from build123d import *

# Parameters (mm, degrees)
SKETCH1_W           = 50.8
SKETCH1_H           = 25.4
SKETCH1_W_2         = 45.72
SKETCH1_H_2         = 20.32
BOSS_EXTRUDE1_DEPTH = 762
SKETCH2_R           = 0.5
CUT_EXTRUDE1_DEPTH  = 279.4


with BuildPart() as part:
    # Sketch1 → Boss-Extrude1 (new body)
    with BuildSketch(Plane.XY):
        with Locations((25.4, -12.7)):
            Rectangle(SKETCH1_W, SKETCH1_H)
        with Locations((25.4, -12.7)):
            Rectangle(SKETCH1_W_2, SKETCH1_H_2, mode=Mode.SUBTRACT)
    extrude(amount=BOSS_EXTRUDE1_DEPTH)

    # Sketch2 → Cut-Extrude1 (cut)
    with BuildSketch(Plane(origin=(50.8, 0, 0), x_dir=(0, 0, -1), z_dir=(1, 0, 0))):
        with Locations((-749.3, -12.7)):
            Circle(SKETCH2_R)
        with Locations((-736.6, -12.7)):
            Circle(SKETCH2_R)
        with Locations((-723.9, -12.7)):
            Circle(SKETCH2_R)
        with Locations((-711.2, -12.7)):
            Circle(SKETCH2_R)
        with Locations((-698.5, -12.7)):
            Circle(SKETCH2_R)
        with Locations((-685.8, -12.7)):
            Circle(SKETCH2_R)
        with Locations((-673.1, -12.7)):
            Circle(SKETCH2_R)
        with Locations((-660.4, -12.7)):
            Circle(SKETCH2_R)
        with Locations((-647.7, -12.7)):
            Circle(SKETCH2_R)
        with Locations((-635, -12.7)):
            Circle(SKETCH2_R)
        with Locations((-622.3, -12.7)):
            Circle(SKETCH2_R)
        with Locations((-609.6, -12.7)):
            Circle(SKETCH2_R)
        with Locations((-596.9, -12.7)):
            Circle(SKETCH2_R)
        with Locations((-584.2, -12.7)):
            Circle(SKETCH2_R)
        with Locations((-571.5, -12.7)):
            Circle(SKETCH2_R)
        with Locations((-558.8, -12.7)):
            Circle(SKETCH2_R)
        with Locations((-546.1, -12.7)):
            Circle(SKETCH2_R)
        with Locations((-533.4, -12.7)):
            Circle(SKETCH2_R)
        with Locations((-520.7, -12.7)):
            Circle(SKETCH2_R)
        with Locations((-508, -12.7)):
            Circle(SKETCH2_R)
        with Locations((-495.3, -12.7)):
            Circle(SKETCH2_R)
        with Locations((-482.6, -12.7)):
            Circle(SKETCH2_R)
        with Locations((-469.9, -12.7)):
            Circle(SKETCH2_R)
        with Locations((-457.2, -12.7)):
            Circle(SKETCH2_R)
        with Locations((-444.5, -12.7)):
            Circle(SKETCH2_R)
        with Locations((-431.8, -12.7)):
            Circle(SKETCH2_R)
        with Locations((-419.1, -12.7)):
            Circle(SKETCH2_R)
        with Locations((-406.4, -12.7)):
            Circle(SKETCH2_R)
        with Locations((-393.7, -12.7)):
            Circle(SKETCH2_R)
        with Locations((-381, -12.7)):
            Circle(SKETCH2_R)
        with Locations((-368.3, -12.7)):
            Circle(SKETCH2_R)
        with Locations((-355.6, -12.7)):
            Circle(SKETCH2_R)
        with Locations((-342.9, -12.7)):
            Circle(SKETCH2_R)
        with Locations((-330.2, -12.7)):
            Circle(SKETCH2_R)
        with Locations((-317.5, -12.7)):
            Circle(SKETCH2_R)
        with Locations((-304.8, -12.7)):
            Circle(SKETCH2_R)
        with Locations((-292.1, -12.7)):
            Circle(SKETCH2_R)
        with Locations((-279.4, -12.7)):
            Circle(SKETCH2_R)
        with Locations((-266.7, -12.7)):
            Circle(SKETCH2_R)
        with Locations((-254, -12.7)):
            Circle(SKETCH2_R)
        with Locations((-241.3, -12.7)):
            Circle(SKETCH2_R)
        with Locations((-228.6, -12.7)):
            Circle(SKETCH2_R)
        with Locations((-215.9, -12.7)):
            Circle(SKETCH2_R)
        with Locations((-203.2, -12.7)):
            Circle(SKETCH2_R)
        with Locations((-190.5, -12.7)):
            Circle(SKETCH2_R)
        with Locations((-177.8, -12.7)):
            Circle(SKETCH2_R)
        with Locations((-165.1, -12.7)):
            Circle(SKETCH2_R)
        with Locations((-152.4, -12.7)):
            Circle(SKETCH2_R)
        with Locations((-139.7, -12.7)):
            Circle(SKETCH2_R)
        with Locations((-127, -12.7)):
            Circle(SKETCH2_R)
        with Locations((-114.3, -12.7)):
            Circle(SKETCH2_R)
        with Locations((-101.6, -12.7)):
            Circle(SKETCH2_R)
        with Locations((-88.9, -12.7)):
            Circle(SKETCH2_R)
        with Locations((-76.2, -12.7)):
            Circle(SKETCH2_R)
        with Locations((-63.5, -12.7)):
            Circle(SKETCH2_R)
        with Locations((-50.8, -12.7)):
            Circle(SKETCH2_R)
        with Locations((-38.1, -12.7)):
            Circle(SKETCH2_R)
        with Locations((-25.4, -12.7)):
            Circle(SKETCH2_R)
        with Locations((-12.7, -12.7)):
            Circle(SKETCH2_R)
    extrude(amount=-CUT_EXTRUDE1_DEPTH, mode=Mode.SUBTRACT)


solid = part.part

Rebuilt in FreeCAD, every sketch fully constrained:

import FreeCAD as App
import Part
import Sketcher
Q = App.Units.Quantity

doc = App.newDocument("Part")
body = doc.addObject("PartDesign::Body", "Body")

# Sketch on XY plane
sketch1 = doc.addObject("Sketcher::SketchObject", "Sketch")
body.addObject(sketch1)
sketch1.AttachmentSupport = (doc.XY_Plane, [""])
sketch1.MapMode = "FlatFace"
sketch1.addGeometry([
    Part.LineSegment(App.Vector(0, 0, 0), App.Vector(0, -25, 0)),  # 0
    Part.LineSegment(App.Vector(0, -25, 0), App.Vector(51, -25, 0)),  # 1
    Part.LineSegment(App.Vector(51, -25, 0), App.Vector(51, 0, 0)),  # 2
    Part.LineSegment(App.Vector(51, 0, 0), App.Vector(0, 0, 0)),  # 3
    Part.LineSegment(App.Vector(48, -23, 0), App.Vector(3, -23, 0)),  # 4
    Part.LineSegment(App.Vector(3, -23, 0), App.Vector(3, -3, 0)),  # 5
    Part.LineSegment(App.Vector(3, -3, 0), App.Vector(48, -3, 0)),  # 6
    Part.LineSegment(App.Vector(48, -3, 0), App.Vector(48, -23, 0)),  # 7
], False)
sketch1.addConstraint([
    Sketcher.Constraint("Coincident", 0, 2, 1, 1),
    Sketcher.Constraint("Coincident", 1, 2, 2, 1),
    Sketcher.Constraint("Coincident", 2, 2, 3, 1),
    Sketcher.Constraint("Coincident", 3, 2, 0, 1),
    Sketcher.Constraint("Coincident", 4, 2, 5, 1),
    Sketcher.Constraint("Coincident", 5, 2, 6, 1),
    Sketcher.Constraint("Coincident", 6, 2, 7, 1),
    Sketcher.Constraint("Coincident", 7, 2, 4, 1),
    Sketcher.Constraint("Vertical", 0),
    Sketcher.Constraint("Horizontal", 1),
    Sketcher.Constraint("Vertical", 2),
    Sketcher.Constraint("Horizontal", 3),
    Sketcher.Constraint("Horizontal", 4),
    Sketcher.Constraint("Vertical", 5),
    Sketcher.Constraint("Horizontal", 6),
    Sketcher.Constraint("Vertical", 7),
    Sketcher.Constraint("Coincident", 3, 2, -1, 1),
    Sketcher.Constraint("DistanceX", 1, 1, 1, 2, Q("2 in")),
    Sketcher.Constraint("DistanceY", 0, 2, 0, 1, Q("1 in")),
    Sketcher.Constraint("DistanceX", 4, 2, 4, 1, Q("1.8 in")),
    Sketcher.Constraint("DistanceY", 5, 1, 5, 2, Q("0.8 in")),
    Sketcher.Constraint("DistanceX", -1, 1, 4, 2, Q("0.1 in")),
    Sketcher.Constraint("DistanceY", 4, 2, -1, 1, Q("0.9 in")),
])
pad1 = doc.addObject("PartDesign::Pad", "Pad")
body.addObject(pad1)
pad1.Profile = sketch1
pad1.Length = Q("30 in")

# Sketch on YZ plane
sketch2 = doc.addObject("Sketcher::SketchObject", "Sketch001")
body.addObject(sketch2)
sketch2.AttachmentSupport = (doc.YZ_Plane, [""])
sketch2.MapMode = "FlatFace"
sketch2.AttachmentOffset = App.Placement(App.Vector(0, 0, 2 * 25.4), App.Rotation())
sketch2.addGeometry([
    Part.Circle(App.Vector(-12.7, 749.3, 0), App.Vector(0, 0, 1), 0.5),  # 0
    Part.Circle(App.Vector(-12.7, 736.6, 0), App.Vector(0, 0, 1), 0.5),  # 1
    Part.Circle(App.Vector(-12.7, 723.9, 0), App.Vector(0, 0, 1), 0.5),  # 2
    Part.Circle(App.Vector(-12.7, 711.2, 0), App.Vector(0, 0, 1), 0.5),  # 3
    Part.Circle(App.Vector(-12.7, 698.5, 0), App.Vector(0, 0, 1), 0.5),  # 4
    Part.Circle(App.Vector(-12.7, 685.8, 0), App.Vector(0, 0, 1), 0.5),  # 5
    Part.Circle(App.Vector(-12.7, 673.1, 0), App.Vector(0, 0, 1), 0.5),  # 6
    Part.Circle(App.Vector(-12.7, 660.4, 0), App.Vector(0, 0, 1), 0.5),  # 7
    Part.Circle(App.Vector(-12.7, 647.7, 0), App.Vector(0, 0, 1), 0.5),  # 8
    Part.Circle(App.Vector(-12.7, 635, 0), App.Vector(0, 0, 1), 0.5),  # 9
    Part.Circle(App.Vector(-12.7, 622.3, 0), App.Vector(0, 0, 1), 0.5),  # 10
    Part.Circle(App.Vector(-12.7, 609.6, 0), App.Vector(0, 0, 1), 0.5),  # 11
    Part.Circle(App.Vector(-12.7, 596.9, 0), App.Vector(0, 0, 1), 0.5),  # 12
    Part.Circle(App.Vector(-12.7, 584.2, 0), App.Vector(0, 0, 1), 0.5),  # 13
    Part.Circle(App.Vector(-12.7, 571.5, 0), App.Vector(0, 0, 1), 0.5),  # 14
    Part.Circle(App.Vector(-12.7, 558.8, 0), App.Vector(0, 0, 1), 0.5),  # 15
    Part.Circle(App.Vector(-12.7, 546.1, 0), App.Vector(0, 0, 1), 0.5),  # 16
    Part.Circle(App.Vector(-12.7, 533.4, 0), App.Vector(0, 0, 1), 0.5),  # 17
    Part.Circle(App.Vector(-12.7, 520.7, 0), App.Vector(0, 0, 1), 0.5),  # 18
    Part.Circle(App.Vector(-12.7, 508, 0), App.Vector(0, 0, 1), 0.5),  # 19
    Part.Circle(App.Vector(-12.7, 495.3, 0), App.Vector(0, 0, 1), 0.5),  # 20
    Part.Circle(App.Vector(-12.7, 482.6, 0), App.Vector(0, 0, 1), 0.5),  # 21
    Part.Circle(App.Vector(-12.7, 469.9, 0), App.Vector(0, 0, 1), 0.5),  # 22
    Part.Circle(App.Vector(-12.7, 457.2, 0), App.Vector(0, 0, 1), 0.5),  # 23
    Part.Circle(App.Vector(-12.7, 444.5, 0), App.Vector(0, 0, 1), 0.5),  # 24
    Part.Circle(App.Vector(-12.7, 431.8, 0), App.Vector(0, 0, 1), 0.5),  # 25
    Part.Circle(App.Vector(-12.7, 419.1, 0), App.Vector(0, 0, 1), 0.5),  # 26
    Part.Circle(App.Vector(-12.7, 406.4, 0), App.Vector(0, 0, 1), 0.5),  # 27
    Part.Circle(App.Vector(-12.7, 393.7, 0), App.Vector(0, 0, 1), 0.5),  # 28
    Part.Circle(App.Vector(-12.7, 381, 0), App.Vector(0, 0, 1), 0.5),  # 29
    Part.Circle(App.Vector(-12.7, 368.3, 0), App.Vector(0, 0, 1), 0.5),  # 30
    Part.Circle(App.Vector(-12.7, 355.6, 0), App.Vector(0, 0, 1), 0.5),  # 31
    Part.Circle(App.Vector(-12.7, 342.9, 0), App.Vector(0, 0, 1), 0.5),  # 32
    Part.Circle(App.Vector(-12.7, 330.2, 0), App.Vector(0, 0, 1), 0.5),  # 33
    Part.Circle(App.Vector(-12.7, 317.5, 0), App.Vector(0, 0, 1), 0.5),  # 34
    Part.Circle(App.Vector(-12.7, 304.8, 0), App.Vector(0, 0, 1), 0.5),  # 35
    Part.Circle(App.Vector(-12.7, 292.1, 0), App.Vector(0, 0, 1), 0.5),  # 36
    Part.Circle(App.Vector(-12.7, 279.4, 0), App.Vector(0, 0, 1), 0.5),  # 37
    Part.Circle(App.Vector(-12.7, 266.7, 0), App.Vector(0, 0, 1), 0.5),  # 38
    Part.Circle(App.Vector(-12.7, 254, 0), App.Vector(0, 0, 1), 0.5),  # 39
    Part.Circle(App.Vector(-12.7, 241.3, 0), App.Vector(0, 0, 1), 0.5),  # 40
    Part.Circle(App.Vector(-12.7, 228.6, 0), App.Vector(0, 0, 1), 0.5),  # 41
    Part.Circle(App.Vector(-12.7, 215.9, 0), App.Vector(0, 0, 1), 0.5),  # 42
    Part.Circle(App.Vector(-12.7, 203.2, 0), App.Vector(0, 0, 1), 0.5),  # 43
    Part.Circle(App.Vector(-12.7, 190.5, 0), App.Vector(0, 0, 1), 0.5),  # 44
    Part.Circle(App.Vector(-12.7, 177.8, 0), App.Vector(0, 0, 1), 0.5),  # 45
    Part.Circle(App.Vector(-12.7, 165.1, 0), App.Vector(0, 0, 1), 0.5),  # 46
    Part.Circle(App.Vector(-12.7, 152.4, 0), App.Vector(0, 0, 1), 0.5),  # 47
    Part.Circle(App.Vector(-12.7, 139.7, 0), App.Vector(0, 0, 1), 0.5),  # 48
    Part.Circle(App.Vector(-12.7, 127, 0), App.Vector(0, 0, 1), 0.5),  # 49
    Part.Circle(App.Vector(-12.7, 114.3, 0), App.Vector(0, 0, 1), 0.5),  # 50
    Part.Circle(App.Vector(-12.7, 101.6, 0), App.Vector(0, 0, 1), 0.5),  # 51
    Part.Circle(App.Vector(-12.7, 88.9, 0), App.Vector(0, 0, 1), 0.5),  # 52
    Part.Circle(App.Vector(-12.7, 76.2, 0), App.Vector(0, 0, 1), 0.5),  # 53
    Part.Circle(App.Vector(-12.7, 63.5, 0), App.Vector(0, 0, 1), 0.5),  # 54
    Part.Circle(App.Vector(-12.7, 50.8, 0), App.Vector(0, 0, 1), 0.5),  # 55
    Part.Circle(App.Vector(-12.7, 38.1, 0), App.Vector(0, 0, 1), 0.5),  # 56
    Part.Circle(App.Vector(-12.7, 25.4, 0), App.Vector(0, 0, 1), 0.5),  # 57
    Part.Circle(App.Vector(-12.7, 12.7, 0), App.Vector(0, 0, 1), 0.5),  # 58
], False)
sketch2.addConstraint([
    Sketcher.Constraint("Equal", 0, 1),
    Sketcher.Constraint("Equal", 1, 2),
    Sketcher.Constraint("Equal", 2, 3),
    Sketcher.Constraint("Equal", 3, 4),
    Sketcher.Constraint("Equal", 4, 5),
    Sketcher.Constraint("Equal", 5, 6),
    Sketcher.Constraint("Equal", 6, 7),
    Sketcher.Constraint("Equal", 7, 8),
    Sketcher.Constraint("Equal", 8, 9),
    Sketcher.Constraint("Equal", 9, 10),
    Sketcher.Constraint("Equal", 10, 11),
    Sketcher.Constraint("Equal", 11, 12),
    Sketcher.Constraint("Equal", 12, 13),
    Sketcher.Constraint("Equal", 13, 14),
    Sketcher.Constraint("Equal", 14, 15),
    Sketcher.Constraint("Equal", 15, 16),
    Sketcher.Constraint("Equal", 16, 17),
    Sketcher.Constraint("Equal", 17, 18),
    Sketcher.Constraint("Equal", 18, 19),
    Sketcher.Constraint("Equal", 19, 20),
    Sketcher.Constraint("Equal", 20, 21),
    Sketcher.Constraint("Equal", 21, 22),
    Sketcher.Constraint("Equal", 22, 23),
    Sketcher.Constraint("Equal", 23, 24),
    Sketcher.Constraint("Equal", 24, 25),
    Sketcher.Constraint("Equal", 25, 26),
    Sketcher.Constraint("Equal", 26, 27),
    Sketcher.Constraint("Equal", 27, 28),
    Sketcher.Constraint("Equal", 28, 29),
    Sketcher.Constraint("Equal", 29, 30),
    Sketcher.Constraint("Equal", 30, 31),
    Sketcher.Constraint("Equal", 31, 32),
    Sketcher.Constraint("Equal", 32, 33),
    Sketcher.Constraint("Equal", 33, 34),
    Sketcher.Constraint("Equal", 34, 35),
    Sketcher.Constraint("Equal", 35, 36),
    Sketcher.Constraint("Equal", 36, 37),
    Sketcher.Constraint("Equal", 37, 38),
    Sketcher.Constraint("Equal", 38, 39),
    Sketcher.Constraint("Equal", 39, 40),
    Sketcher.Constraint("Equal", 40, 41),
    Sketcher.Constraint("Equal", 41, 42),
    Sketcher.Constraint("Equal", 42, 43),
    Sketcher.Constraint("Equal", 43, 44),
    Sketcher.Constraint("Equal", 44, 45),
    Sketcher.Constraint("Equal", 45, 46),
    Sketcher.Constraint("Equal", 46, 47),
    Sketcher.Constraint("Equal", 47, 48),
    Sketcher.Constraint("Equal", 48, 49),
    Sketcher.Constraint("Equal", 49, 50),
    Sketcher.Constraint("Equal", 50, 51),
    Sketcher.Constraint("Equal", 51, 52),
    Sketcher.Constraint("Equal", 52, 53),
    Sketcher.Constraint("Equal", 53, 54),
    Sketcher.Constraint("Equal", 54, 55),
    Sketcher.Constraint("Equal", 55, 56),
    Sketcher.Constraint("Equal", 56, 57),
    Sketcher.Constraint("Equal", 57, 58),
    Sketcher.Constraint("Vertical", 0, 3, 1, 3),
    Sketcher.Constraint("Vertical", 1, 3, 2, 3),
    Sketcher.Constraint("Vertical", 2, 3, 3, 3),
    Sketcher.Constraint("Vertical", 3, 3, 4, 3),
    Sketcher.Constraint("Vertical", 4, 3, 5, 3),
    Sketcher.Constraint("Vertical", 5, 3, 6, 3),
    Sketcher.Constraint("Vertical", 6, 3, 7, 3),
    Sketcher.Constraint("Vertical", 7, 3, 8, 3),
    Sketcher.Constraint("Vertical", 8, 3, 9, 3),
    Sketcher.Constraint("Vertical", 9, 3, 10, 3),
    Sketcher.Constraint("Vertical", 10, 3, 11, 3),
    Sketcher.Constraint("Vertical", 11, 3, 12, 3),
    Sketcher.Constraint("Vertical", 12, 3, 13, 3),
    Sketcher.Constraint("Vertical", 13, 3, 14, 3),
    Sketcher.Constraint("Vertical", 14, 3, 15, 3),
    Sketcher.Constraint("Vertical", 15, 3, 16, 3),
    Sketcher.Constraint("Vertical", 16, 3, 17, 3),
    Sketcher.Constraint("Vertical", 17, 3, 18, 3),
    Sketcher.Constraint("Vertical", 18, 3, 19, 3),
    Sketcher.Constraint("Vertical", 19, 3, 20, 3),
    Sketcher.Constraint("Vertical", 20, 3, 21, 3),
    Sketcher.Constraint("Vertical", 21, 3, 22, 3),
    Sketcher.Constraint("Vertical", 22, 3, 23, 3),
    Sketcher.Constraint("Vertical", 23, 3, 24, 3),
    Sketcher.Constraint("Vertical", 24, 3, 25, 3),
    Sketcher.Constraint("Vertical", 25, 3, 26, 3),
    Sketcher.Constraint("Vertical", 26, 3, 27, 3),
    Sketcher.Constraint("Vertical", 27, 3, 28, 3),
    Sketcher.Constraint("Vertical", 28, 3, 29, 3),
    Sketcher.Constraint("Vertical", 29, 3, 30, 3),
    Sketcher.Constraint("Vertical", 30, 3, 31, 3),
    Sketcher.Constraint("Vertical", 31, 3, 32, 3),
    Sketcher.Constraint("Vertical", 32, 3, 33, 3),
    Sketcher.Constraint("Vertical", 33, 3, 34, 3),
    Sketcher.Constraint("Vertical", 34, 3, 35, 3),
    Sketcher.Constraint("Vertical", 35, 3, 36, 3),
    Sketcher.Constraint("Vertical", 36, 3, 37, 3),
    Sketcher.Constraint("Vertical", 37, 3, 38, 3),
    Sketcher.Constraint("Vertical", 38, 3, 39, 3),
    Sketcher.Constraint("Vertical", 39, 3, 40, 3),
    Sketcher.Constraint("Vertical", 40, 3, 41, 3),
    Sketcher.Constraint("Vertical", 41, 3, 42, 3),
    Sketcher.Constraint("Vertical", 42, 3, 43, 3),
    Sketcher.Constraint("Vertical", 43, 3, 44, 3),
    Sketcher.Constraint("Vertical", 44, 3, 45, 3),
    Sketcher.Constraint("Vertical", 45, 3, 46, 3),
    Sketcher.Constraint("Vertical", 46, 3, 47, 3),
    Sketcher.Constraint("Vertical", 47, 3, 48, 3),
    Sketcher.Constraint("Vertical", 48, 3, 49, 3),
    Sketcher.Constraint("Vertical", 49, 3, 50, 3),
    Sketcher.Constraint("Vertical", 50, 3, 51, 3),
    Sketcher.Constraint("Vertical", 51, 3, 52, 3),
    Sketcher.Constraint("Vertical", 52, 3, 53, 3),
    Sketcher.Constraint("Vertical", 53, 3, 54, 3),
    Sketcher.Constraint("Vertical", 54, 3, 55, 3),
    Sketcher.Constraint("Vertical", 55, 3, 56, 3),
    Sketcher.Constraint("Vertical", 56, 3, 57, 3),
    Sketcher.Constraint("Vertical", 57, 3, 58, 3),
    Sketcher.Constraint("DistanceY", -1, 1, 1, 3, Q("29 in")),
    Sketcher.Constraint("DistanceY", -1, 1, 3, 3, Q("28 in")),
    Sketcher.Constraint("DistanceY", -1, 1, 5, 3, Q("27 in")),
    Sketcher.Constraint("DistanceY", -1, 1, 7, 3, Q("26 in")),
    Sketcher.Constraint("DistanceY", -1, 1, 9, 3, Q("25 in")),
    Sketcher.Constraint("DistanceY", -1, 1, 11, 3, Q("24 in")),
    Sketcher.Constraint("DistanceY", -1, 1, 13, 3, Q("23 in")),
    Sketcher.Constraint("DistanceY", -1, 1, 15, 3, Q("22 in")),
    Sketcher.Constraint("DistanceY", -1, 1, 17, 3, Q("21 in")),
    Sketcher.Constraint("DistanceY", -1, 1, 19, 3, Q("20 in")),
    Sketcher.Constraint("DistanceY", -1, 1, 21, 3, Q("19 in")),
    Sketcher.Constraint("DistanceY", -1, 1, 23, 3, Q("18 in")),
    Sketcher.Constraint("DistanceY", -1, 1, 25, 3, Q("17 in")),
    Sketcher.Constraint("DistanceY", -1, 1, 27, 3, Q("16 in")),
    Sketcher.Constraint("DistanceY", -1, 1, 29, 3, Q("15 in")),
    Sketcher.Constraint("DistanceY", -1, 1, 31, 3, Q("14 in")),
    Sketcher.Constraint("DistanceY", -1, 1, 33, 3, Q("13 in")),
    Sketcher.Constraint("DistanceY", -1, 1, 35, 3, Q("12 in")),
    Sketcher.Constraint("DistanceY", -1, 1, 37, 3, Q("11 in")),
    Sketcher.Constraint("DistanceY", -1, 1, 39, 3, Q("10 in")),
    Sketcher.Constraint("DistanceY", -1, 1, 41, 3, Q("9 in")),
    Sketcher.Constraint("DistanceY", -1, 1, 43, 3, Q("8 in")),
    Sketcher.Constraint("DistanceY", -1, 1, 45, 3, Q("7 in")),
    Sketcher.Constraint("DistanceY", -1, 1, 47, 3, Q("6 in")),
    Sketcher.Constraint("DistanceY", -1, 1, 49, 3, Q("5 in")),
    Sketcher.Constraint("DistanceY", -1, 1, 51, 3, Q("4 in")),
    Sketcher.Constraint("DistanceY", -1, 1, 53, 3, Q("3 in")),
    Sketcher.Constraint("DistanceY", -1, 1, 55, 3, Q("2 in")),
    Sketcher.Constraint("DistanceY", -1, 1, 57, 3, Q("1 in")),
    Sketcher.Constraint("DistanceY", 2, 3, 0, 3, Q("1 in")),
    Sketcher.Constraint("DistanceY", 4, 3, 2, 3, Q("1 in")),
    Sketcher.Constraint("DistanceY", 6, 3, 4, 3, Q("1 in")),
    Sketcher.Constraint("DistanceY", 8, 3, 6, 3, Q("1 in")),
    Sketcher.Constraint("DistanceY", 10, 3, 8, 3, Q("1 in")),
    Sketcher.Constraint("DistanceY", 12, 3, 10, 3, Q("1 in")),
    Sketcher.Constraint("DistanceY", 14, 3, 12, 3, Q("1 in")),
    Sketcher.Constraint("DistanceY", 16, 3, 14, 3, Q("1 in")),
    Sketcher.Constraint("DistanceY", 18, 3, 16, 3, Q("1 in")),
    Sketcher.Constraint("DistanceY", 20, 3, 18, 3, Q("1 in")),
    Sketcher.Constraint("DistanceY", 22, 3, 20, 3, Q("1 in")),
    Sketcher.Constraint("DistanceY", 24, 3, 22, 3, Q("1 in")),
    Sketcher.Constraint("DistanceY", 26, 3, 24, 3, Q("1 in")),
    Sketcher.Constraint("DistanceY", 28, 3, 26, 3, Q("1 in")),
    Sketcher.Constraint("DistanceY", 30, 3, 28, 3, Q("1 in")),
    Sketcher.Constraint("DistanceY", 32, 3, 30, 3, Q("1 in")),
    Sketcher.Constraint("DistanceY", 34, 3, 32, 3, Q("1 in")),
    Sketcher.Constraint("DistanceY", 36, 3, 34, 3, Q("1 in")),
    Sketcher.Constraint("DistanceY", 38, 3, 36, 3, Q("1 in")),
    Sketcher.Constraint("DistanceY", 40, 3, 38, 3, Q("1 in")),
    Sketcher.Constraint("DistanceY", 42, 3, 40, 3, Q("1 in")),
    Sketcher.Constraint("DistanceY", 44, 3, 42, 3, Q("1 in")),
    Sketcher.Constraint("DistanceY", 46, 3, 44, 3, Q("1 in")),
    Sketcher.Constraint("DistanceY", 48, 3, 46, 3, Q("1 in")),
    Sketcher.Constraint("DistanceY", 50, 3, 48, 3, Q("1 in")),
    Sketcher.Constraint("DistanceY", 52, 3, 50, 3, Q("1 in")),
    Sketcher.Constraint("DistanceY", 54, 3, 52, 3, Q("1 in")),
    Sketcher.Constraint("DistanceY", 56, 3, 54, 3, Q("1 in")),
    Sketcher.Constraint("DistanceY", 58, 3, 56, 3, Q("1 in")),
    Sketcher.Constraint("DistanceX", 0, 3, -1, 1, Q("0.5 in")),
    Sketcher.Constraint("DistanceY", -1, 1, 0, 3, Q("29.5 in")),
    Sketcher.Constraint("Diameter", 0, 1.0),
])
pocket1 = doc.addObject("PartDesign::Pocket", "Pocket")
body.addObject(pocket1)
pocket1.Profile = sketch2
pocket1.Length = Q("11 in")

doc.recompute()
